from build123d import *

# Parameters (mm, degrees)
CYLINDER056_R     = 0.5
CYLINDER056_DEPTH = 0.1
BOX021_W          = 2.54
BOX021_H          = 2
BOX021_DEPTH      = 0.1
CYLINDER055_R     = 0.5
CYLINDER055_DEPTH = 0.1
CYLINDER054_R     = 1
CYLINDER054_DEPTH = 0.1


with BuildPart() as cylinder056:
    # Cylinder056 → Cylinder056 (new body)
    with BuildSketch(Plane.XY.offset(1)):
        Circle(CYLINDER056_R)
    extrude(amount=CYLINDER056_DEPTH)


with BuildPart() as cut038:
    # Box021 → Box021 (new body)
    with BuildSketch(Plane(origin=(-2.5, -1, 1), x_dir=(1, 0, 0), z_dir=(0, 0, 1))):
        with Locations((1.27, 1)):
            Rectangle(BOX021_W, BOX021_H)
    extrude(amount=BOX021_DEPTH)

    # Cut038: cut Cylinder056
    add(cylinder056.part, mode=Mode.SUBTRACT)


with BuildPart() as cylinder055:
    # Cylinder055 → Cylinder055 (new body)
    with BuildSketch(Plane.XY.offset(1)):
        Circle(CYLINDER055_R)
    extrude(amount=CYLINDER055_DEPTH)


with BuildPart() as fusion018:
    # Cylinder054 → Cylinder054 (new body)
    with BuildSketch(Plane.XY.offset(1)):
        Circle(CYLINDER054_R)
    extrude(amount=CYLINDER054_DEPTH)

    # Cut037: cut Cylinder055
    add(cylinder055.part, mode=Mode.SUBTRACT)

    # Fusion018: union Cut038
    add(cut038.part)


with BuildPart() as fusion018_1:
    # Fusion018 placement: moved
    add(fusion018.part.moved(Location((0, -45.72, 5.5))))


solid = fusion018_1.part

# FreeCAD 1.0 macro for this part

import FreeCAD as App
import Part
import Sketcher
from FreeCAD import Vector


def add_polygon(sketch, points):
    """Adds a closed chain of lines whose ends are joined by coincident constraints."""
    first, n = sketch.GeometryCount, len(points)
    for a, b in zip(points, points[1:] + points[:1]):
        sketch.addGeometry(Part.LineSegment(App.Vector(*a, 0), App.Vector(*b, 0)), False)
    for i in range(n):
        sketch.addConstraint(Sketcher.Constraint("Coincident", first + i, 2, first + (i + 1) % n, 1))

doc = App.newDocument("Part")
params = doc.addObject("Spreadsheet::Sheet", "Params")
for row, (alias, value) in enumerate([
    ("sketch1_diameter", "1 mm"),
    ("pad1_length", "0.1 mm"),
    ("sketch2_height", "2 mm"),
    ("sketch2_width", "2.54 mm"),
    ("pad2_length", "0.1 mm"),
    ("sketch3_diameter", "1 mm"),
    ("pad3_length", "0.1 mm"),
    ("sketch4_diameter", "2 mm"),
    ("pad4_length", "0.1 mm"),
], start=1):
    params.set(f"A{row}", alias)
    params.set(f"B{row}", "=" + value)
    params.setAlias(f"B{row}", alias)

body = doc.addObject("PartDesign::Body", "Body")

# Sketch on XY plane
sketch1 = doc.addObject("Sketcher::SketchObject", "Sketch")
body.addObject(sketch1)
sketch1.AttachmentSupport = (doc.XY_Plane, [""])
sketch1.MapMode = "FlatFace"
sketch1.AttachmentOffset = App.Placement(Vector(0, 0, 1), App.Rotation())
sketch1.addGeometry(Part.Circle(Vector(0, 0, 0), Vector(0, 0, 1), 0.5), False)
sketch1.addConstraint(Sketcher.Constraint("Coincident", 0, 3, -1, 1))
sketch1.addConstraint(Sketcher.Constraint("Diameter", 0, 1.0))
sketch1.setExpression("Constraints[1]", "Params.sketch1_diameter")
pad1 = doc.addObject("PartDesign::Pad", "Pad")
body.addObject(pad1)
pad1.Profile = sketch1
pad1.setExpression("Length", "Params.pad1_length")
body2 = doc.addObject("PartDesign::Body", "Body001")

# Sketch on XY plane
sketch2 = doc.addObject("Sketcher::SketchObject", "Sketch001")
body2.addObject(sketch2)
sketch2.AttachmentSupport = (doc.getObject("XY_Plane001"), [""])
sketch2.MapMode = "FlatFace"
sketch2.AttachmentOffset = App.Placement(Vector(0, 0, 1), App.Rotation())
add_polygon(sketch2, [(-2.5, 1), (-2.5, -1), (0, -1), (0, 1)])  # lines 0-3
sketch2.addConstraint(Sketcher.Constraint("Vertical", 0))
sketch2.addConstraint(Sketcher.Constraint("Horizontal", 1))
sketch2.addConstraint(Sketcher.Constraint("Vertical", 2))
sketch2.addConstraint(Sketcher.Constraint("Horizontal", 3))
sketch2.addConstraint(Sketcher.Constraint("DistanceY", 0, 2, 0, 1, 2.0))
sketch2.addConstraint(Sketcher.Constraint("DistanceY", 0, 2, -1, 1, 1.0))
sketch2.addConstraint(Sketcher.Constraint("DistanceX", 1, 1, 1, 2, 2.54))
sketch2.addConstraint(Sketcher.Constraint("DistanceX", 0, 2, -1, 1, 2.5))
sketch2.setExpression("Constraints[8]", "Params.sketch2_height")
sketch2.setExpression("Constraints[10]", "Params.sketch2_width")
pad2 = doc.addObject("PartDesign::Pad", "Pad001")
body2.addObject(pad2)
pad2.Profile = sketch2
pad2.setExpression("Length", "Params.pad2_length")
doc.recompute()

boolean = doc.addObject("PartDesign::Boolean", "Boolean")
body2.addObject(boolean)
boolean.Type = "Cut"
boolean.addObjects([body])
body3 = doc.addObject("PartDesign::Body", "Body002")

# Sketch on XY plane
sketch3 = doc.addObject("Sketcher::SketchObject", "Sketch002")
body3.addObject(sketch3)
sketch3.AttachmentSupport = (doc.getObject("XY_Plane002"), [""])
sketch3.MapMode = "FlatFace"
sketch3.AttachmentOffset = App.Placement(Vector(0, 0, 1), App.Rotation())
sketch3.addGeometry(Part.Circle(Vector(0, 0, 0), Vector(0, 0, 1), 0.5), False)
sketch3.addConstraint(Sketcher.Constraint("Coincident", 0, 3, -1, 1))
sketch3.addConstraint(Sketcher.Constraint("Diameter", 0, 1.0))
sketch3.setExpression("Constraints[1]", "Params.sketch3_diameter")
pad3 = doc.addObject("PartDesign::Pad", "Pad002")
body3.addObject(pad3)
pad3.Profile = sketch3
pad3.setExpression("Length", "Params.pad3_length")
body4 = doc.addObject("PartDesign::Body", "Body003")

# Sketch on XY plane
sketch4 = doc.addObject("Sketcher::SketchObject", "Sketch003")
body4.addObject(sketch4)
sketch4.AttachmentSupport = (doc.getObject("XY_Plane003"), [""])
sketch4.MapMode = "FlatFace"
sketch4.AttachmentOffset = App.Placement(Vector(0, 0, 1), App.Rotation())
sketch4.addGeometry(Part.Circle(Vector(0, 0, 0), Vector(0, 0, 1), 1), False)
sketch4.addConstraint(Sketcher.Constraint("Coincident", 0, 3, -1, 1))
sketch4.addConstraint(Sketcher.Constraint("Diameter", 0, 2.0))
sketch4.setExpression("Constraints[1]", "Params.sketch4_diameter")
pad4 = doc.addObject("PartDesign::Pad", "Pad003")
body4.addObject(pad4)
pad4.Profile = sketch4
pad4.setExpression("Length", "Params.pad4_length")
doc.recompute()

boolean2 = doc.addObject("PartDesign::Boolean", "Boolean001")
body4.addObject(boolean2)
boolean2.Type = "Cut"
boolean2.addObjects([body3])
doc.recompute()

boolean3 = doc.addObject("PartDesign::Boolean", "Boolean002")
body4.addObject(boolean3)
boolean3.Type = "Fuse"
boolean3.addObjects([body2])
body5 = doc.addObject("PartDesign::Body", "Body004")
doc.recompute()

body4.Placement = App.Placement(Vector(0, -45.72, 5.5), App.Rotation(Vector(0, 0, 1), 0))
boolean4 = doc.addObject("PartDesign::Boolean", "Boolean003")
body5.addObject(boolean4)
boolean4.Type = "Fuse"
boolean4.addObjects([body4])

doc.recompute()
